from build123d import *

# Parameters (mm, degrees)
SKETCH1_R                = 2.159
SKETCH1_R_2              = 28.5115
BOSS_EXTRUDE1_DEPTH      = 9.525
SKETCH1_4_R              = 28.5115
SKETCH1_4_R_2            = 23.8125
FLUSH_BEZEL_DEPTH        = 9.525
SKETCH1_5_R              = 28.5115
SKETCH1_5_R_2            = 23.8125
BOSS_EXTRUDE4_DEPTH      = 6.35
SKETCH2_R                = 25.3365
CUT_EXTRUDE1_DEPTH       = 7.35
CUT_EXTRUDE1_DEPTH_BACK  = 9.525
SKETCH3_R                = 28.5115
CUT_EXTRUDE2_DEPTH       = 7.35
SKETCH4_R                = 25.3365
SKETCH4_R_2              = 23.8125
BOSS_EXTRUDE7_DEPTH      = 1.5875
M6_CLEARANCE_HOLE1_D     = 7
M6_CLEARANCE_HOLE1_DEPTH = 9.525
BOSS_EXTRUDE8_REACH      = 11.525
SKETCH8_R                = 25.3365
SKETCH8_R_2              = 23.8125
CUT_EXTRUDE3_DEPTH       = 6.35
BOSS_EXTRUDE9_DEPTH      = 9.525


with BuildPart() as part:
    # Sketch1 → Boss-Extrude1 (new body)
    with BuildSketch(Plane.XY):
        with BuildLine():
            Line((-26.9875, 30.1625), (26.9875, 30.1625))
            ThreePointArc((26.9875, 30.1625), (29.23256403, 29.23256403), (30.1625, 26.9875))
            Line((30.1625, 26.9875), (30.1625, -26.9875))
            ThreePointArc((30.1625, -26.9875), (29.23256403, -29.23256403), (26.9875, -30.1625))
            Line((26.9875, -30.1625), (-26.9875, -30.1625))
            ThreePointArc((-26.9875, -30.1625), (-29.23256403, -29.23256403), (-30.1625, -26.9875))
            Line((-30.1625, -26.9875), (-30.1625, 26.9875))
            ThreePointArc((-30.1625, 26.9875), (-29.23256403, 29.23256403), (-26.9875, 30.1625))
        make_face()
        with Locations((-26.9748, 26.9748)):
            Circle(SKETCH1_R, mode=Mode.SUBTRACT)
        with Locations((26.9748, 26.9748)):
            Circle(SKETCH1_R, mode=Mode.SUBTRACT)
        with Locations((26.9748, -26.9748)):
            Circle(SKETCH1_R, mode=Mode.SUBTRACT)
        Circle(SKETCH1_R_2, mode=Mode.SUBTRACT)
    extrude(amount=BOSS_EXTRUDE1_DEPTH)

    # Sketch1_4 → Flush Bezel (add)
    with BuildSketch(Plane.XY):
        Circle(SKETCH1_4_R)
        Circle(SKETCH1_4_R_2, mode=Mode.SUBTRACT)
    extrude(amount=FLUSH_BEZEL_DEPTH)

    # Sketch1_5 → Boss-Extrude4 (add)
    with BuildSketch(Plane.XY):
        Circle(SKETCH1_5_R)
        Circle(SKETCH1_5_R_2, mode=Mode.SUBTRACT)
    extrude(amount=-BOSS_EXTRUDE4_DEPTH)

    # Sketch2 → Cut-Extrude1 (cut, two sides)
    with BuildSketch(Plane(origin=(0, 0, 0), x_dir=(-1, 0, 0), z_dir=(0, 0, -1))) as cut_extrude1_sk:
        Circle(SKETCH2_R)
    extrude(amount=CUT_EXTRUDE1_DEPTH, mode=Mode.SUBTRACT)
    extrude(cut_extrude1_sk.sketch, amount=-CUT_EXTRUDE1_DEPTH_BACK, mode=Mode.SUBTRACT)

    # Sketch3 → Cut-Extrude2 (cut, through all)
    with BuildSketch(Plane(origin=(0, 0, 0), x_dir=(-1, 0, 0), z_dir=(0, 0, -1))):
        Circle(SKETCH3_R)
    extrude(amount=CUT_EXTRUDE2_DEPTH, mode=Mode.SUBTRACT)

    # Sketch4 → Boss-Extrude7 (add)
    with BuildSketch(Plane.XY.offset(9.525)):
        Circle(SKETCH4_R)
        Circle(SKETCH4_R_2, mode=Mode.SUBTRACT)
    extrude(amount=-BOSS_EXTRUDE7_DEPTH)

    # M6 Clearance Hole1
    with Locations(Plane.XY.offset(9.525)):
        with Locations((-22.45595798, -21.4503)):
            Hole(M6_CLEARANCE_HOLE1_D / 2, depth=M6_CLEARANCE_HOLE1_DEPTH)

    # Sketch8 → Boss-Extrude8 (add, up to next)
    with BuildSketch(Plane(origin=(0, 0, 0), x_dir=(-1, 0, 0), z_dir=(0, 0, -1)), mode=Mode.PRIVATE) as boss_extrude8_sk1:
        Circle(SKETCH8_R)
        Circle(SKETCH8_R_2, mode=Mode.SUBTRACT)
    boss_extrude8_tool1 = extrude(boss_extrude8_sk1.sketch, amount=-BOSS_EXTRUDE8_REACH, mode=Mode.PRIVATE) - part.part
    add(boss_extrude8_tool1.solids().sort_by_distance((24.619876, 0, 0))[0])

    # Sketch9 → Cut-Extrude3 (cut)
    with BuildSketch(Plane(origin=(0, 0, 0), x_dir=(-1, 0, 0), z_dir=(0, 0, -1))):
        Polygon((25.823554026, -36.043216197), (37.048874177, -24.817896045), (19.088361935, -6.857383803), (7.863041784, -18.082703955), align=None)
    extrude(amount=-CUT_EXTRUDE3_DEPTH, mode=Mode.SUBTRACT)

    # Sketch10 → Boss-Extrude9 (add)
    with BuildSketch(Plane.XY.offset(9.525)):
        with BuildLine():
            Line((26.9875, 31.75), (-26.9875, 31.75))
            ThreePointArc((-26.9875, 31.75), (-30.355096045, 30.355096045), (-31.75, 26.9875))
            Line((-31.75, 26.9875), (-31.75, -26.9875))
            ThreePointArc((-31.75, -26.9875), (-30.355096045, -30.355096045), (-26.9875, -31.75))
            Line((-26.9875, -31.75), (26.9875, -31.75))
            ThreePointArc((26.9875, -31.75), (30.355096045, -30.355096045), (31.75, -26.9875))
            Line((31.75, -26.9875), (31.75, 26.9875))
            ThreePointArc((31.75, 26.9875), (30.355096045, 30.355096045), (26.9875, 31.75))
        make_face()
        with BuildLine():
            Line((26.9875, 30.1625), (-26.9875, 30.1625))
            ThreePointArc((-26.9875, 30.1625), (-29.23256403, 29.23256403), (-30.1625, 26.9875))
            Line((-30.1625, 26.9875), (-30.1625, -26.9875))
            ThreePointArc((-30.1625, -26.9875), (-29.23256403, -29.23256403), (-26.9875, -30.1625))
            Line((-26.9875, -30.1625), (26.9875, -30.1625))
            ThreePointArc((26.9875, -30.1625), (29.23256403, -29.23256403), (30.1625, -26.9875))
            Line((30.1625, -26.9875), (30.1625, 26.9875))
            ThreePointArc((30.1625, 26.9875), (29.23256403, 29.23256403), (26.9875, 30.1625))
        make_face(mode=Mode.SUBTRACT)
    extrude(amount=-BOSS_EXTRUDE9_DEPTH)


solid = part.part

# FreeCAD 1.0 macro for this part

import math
import FreeCAD as App
import Part
import Sketcher
from FreeCAD import Vector
Q = App.Units.Quantity

doc = App.newDocument("Part")
body = doc.addObject("PartDesign::Body", "Body")

sketch1 = doc.addObject("Sketcher::SketchObject", "Sketch")
body.addObject(sketch1)
sketch1.AttachmentSupport = (doc.XY_Plane, [""])
sketch1.MapMode = "FlatFace"
sketch1.addGeometry([
    Part.LineSegment(Vector(27, 30.2, 0), Vector(-27, 30.2, 0)),
    Part.ArcOfCircle(Part.Circle(Vector(-27, 27, 0), Vector(0, 0, 1), 3.2), math.radians(90), math.radians(180)),
    Part.LineSegment(Vector(-30.2, 27, 0), Vector(-30.2, -27, 0)),
    Part.ArcOfCircle(Part.Circle(Vector(-27, -27, 0), Vector(0, 0, 1), 3.2), math.radians(-180), math.radians(-90)),
    Part.LineSegment(Vector(-27, -30.2, 0), Vector(27, -30.2, 0)),
    Part.ArcOfCircle(Part.Circle(Vector(27, -27, 0), Vector(0, 0, 1), 3.2), math.radians(-90), math.radians(0)),
    Part.LineSegment(Vector(30.2, -27, 0), Vector(30.2, 27, 0)),
    Part.ArcOfCircle(Part.Circle(Vector(27, 27, 0), Vector(0, 0, 1), 3.2), math.radians(0), math.radians(90)),
    Part.Circle(Vector(27, -27, 0), Vector(0, 0, 1), 2.2),
    Part.Circle(Vector(27, 27, 0), Vector(0, 0, 1), 2.2),
    Part.Circle(Vector(0, 0, 0), Vector(0, 0, 1), 28.5),
    Part.Circle(Vector(-27, 27, 0), Vector(0, 0, 1), 2.2),
], False)
sketch1.addConstraint([
    Sketcher.Constraint("Tangent", 0, 2, 1, 1),
    Sketcher.Constraint("Tangent", 1, 2, 2, 1),
    Sketcher.Constraint("Tangent", 2, 2, 3, 1),
    Sketcher.Constraint("Tangent", 3, 2, 4, 1),
    Sketcher.Constraint("Tangent", 4, 2, 5, 1),
    Sketcher.Constraint("Tangent", 5, 2, 6, 1),
    Sketcher.Constraint("Tangent", 6, 2, 7, 1),
    Sketcher.Constraint("Tangent", 7, 2, 0, 1),
    Sketcher.Constraint("Horizontal", 0),
    Sketcher.Constraint("Vertical", 2),
    Sketcher.Constraint("Horizontal", 4),
    Sketcher.Constraint("Vertical", 6),
    Sketcher.Constraint("Coincident", 10, 3, -1, 1),
    Sketcher.Constraint("Equal", 1, 3),
    Sketcher.Constraint("Equal", 3, 5),
    Sketcher.Constraint("Equal", 5, 7),
    Sketcher.Constraint("Equal", 8, 9),
    Sketcher.Constraint("Equal", 9, 11),
    Sketcher.Constraint("Symmetric", 1, 3, 5, 3, -1, 1),
    Sketcher.Constraint("Symmetric", 8, 3, 11, 3, -1, 1),
    Sketcher.Constraint("Symmetric", 9, 3, 11, 3, -2),
    Sketcher.Constraint("Equal", 4, 2),
    Sketcher.Constraint("Diameter", 8, Q("0.17 in")),
    Sketcher.Constraint("Diameter", 10, Q("2.245 in")),
    Sketcher.Constraint("Radius", 1, Q("0.125 in")),
    Sketcher.Constraint("DistanceX", 0, 2, 0, 1, Q("2.125 in")),
    Sketcher.Constraint("DistanceX", -1, 1, 8, 3, Q("1.062 in")),
    Sketcher.Constraint("DistanceY", 8, 3, -1, 1, Q("1.062 in")),
])
pad1 = doc.addObject("PartDesign::Pad", "Pad")
body.addObject(pad1)
pad1.Profile = sketch1
pad1.Length = Q("0.375 in")

sketch2 = doc.addObject("Sketcher::SketchObject", "Sketch001")
body.addObject(sketch2)
sketch2.AttachmentSupport = (doc.XY_Plane, [""])
sketch2.MapMode = "FlatFace"
sketch2.addGeometry([
    Part.Circle(Vector(0, 0, 0), Vector(0, 0, 1), 29),
    Part.Circle(Vector(0, 0, 0), Vector(0, 0, 1), 24),
], False)
sketch2.addConstraint([
    Sketcher.Constraint("Coincident", 0, 3, -1, 1),
    Sketcher.Constraint("Coincident", 1, 3, -1, 1),
    Sketcher.Constraint("Diameter", 0, Q("2.245 in")),
    Sketcher.Constraint("Diameter", 1, Q("1.875 in")),
])
pad2 = doc.addObject("PartDesign::Pad", "Pad001")
body.addObject(pad2)
pad2.Profile = sketch2
pad2.Length = Q("0.375 in")

sketch3 = doc.addObject("Sketcher::SketchObject", "Sketch002")
body.addObject(sketch3)
sketch3.AttachmentSupport = (doc.XY_Plane, [""])
sketch3.MapMode = "FlatFace"
sketch3.addGeometry([
    Part.Circle(Vector(0, 0, 0), Vector(0, 0, 1), 29),
    Part.Circle(Vector(0, 0, 0), Vector(0, 0, 1), 24),
], False)
sketch3.addConstraint([
    Sketcher.Constraint("Coincident", 0, 3, -1, 1),
    Sketcher.Constraint("Coincident", 1, 3, -1, 1),
    Sketcher.Constraint("Diameter", 0, Q("2.245 in")),
    Sketcher.Constraint("Diameter", 1, Q("1.875 in")),
])
pad3 = doc.addObject("PartDesign::Pad", "Pad002")
body.addObject(pad3)
pad3.Profile = sketch3
pad3.Length = Q("0.25 in")
pad3.Reversed = True

sketch4 = doc.addObject("Sketcher::SketchObject", "Sketch003")
body.addObject(sketch4)
sketch4.AttachmentSupport = (doc.XY_Plane, [""])
sketch4.MapMode = "FlatFace"
sketch4.addGeometry(Part.Circle(Vector(0, 0, 0), Vector(0, 0, 1), 25), False)
sketch4.addConstraint([
    Sketcher.Constraint("Coincident", 0, 3, -1, 1),
    Sketcher.Constraint("Diameter", 0, Q("1.995 in")),
])
pocket1 = doc.addObject("PartDesign::Pocket", "Pocket")
body.addObject(pocket1)
pocket1.Profile = sketch4
pocket1.Type = "ThroughAll"
pocket1.Midplane = True

sketch5 = doc.addObject("Sketcher::SketchObject", "Sketch004")
body.addObject(sketch5)
sketch5.AttachmentSupport = (doc.XY_Plane, [""])
sketch5.MapMode = "FlatFace"
sketch5.addGeometry(Part.Circle(Vector(0, 0, 0), Vector(0, 0, 1), 29), False)
sketch5.addConstraint([
    Sketcher.Constraint("Coincident", 0, 3, -1, 1),
    Sketcher.Constraint("Diameter", 0, Q("2.245 in")),
])
pocket2 = doc.addObject("PartDesign::Pocket", "Pocket001")
body.addObject(pocket2)
pocket2.Profile = sketch5
pocket2.Type = "ThroughAll"

sketch6 = doc.addObject("Sketcher::SketchObject", "Sketch005")
body.addObject(sketch6)
sketch6.AttachmentSupport = (doc.XY_Plane, [""])
sketch6.MapMode = "FlatFace"
sketch6.AttachmentOffset = App.Placement(Vector(0, 0, 0.375 * 25.4), App.Rotation())
sketch6.addGeometry([
    Part.Circle(Vector(0, 0, 0), Vector(0, 0, 1), 25),
    Part.Circle(Vector(0, 0, 0), Vector(0, 0, 1), 24),
], False)
sketch6.addConstraint([
    Sketcher.Constraint("Coincident", 0, 3, -1, 1),
    Sketcher.Constraint("Coincident", 1, 3, -1, 1),
    Sketcher.Constraint("Diameter", 0, Q("1.995 in")),
    Sketcher.Constraint("Diameter", 1, Q("1.875 in")),
])
pad4 = doc.addObject("PartDesign::Pad", "Pad003")
body.addObject(pad4)
pad4.Profile = sketch6
pad4.Length = Q("0.0625 in")
pad4.Reversed = True

sketch7 = doc.addObject("Sketcher::SketchObject", "Sketch006")
body.addObject(sketch7)
sketch7.AttachmentSupport = (doc.XY_Plane, [""])
sketch7.MapMode = "FlatFace"
sketch7.AttachmentOffset = App.Placement(Vector(0, 0, 0.375 * 25.4), App.Rotation())
sketch7.addGeometry(Part.Circle(Vector(-22.5, -21.5, 0), Vector(0, 0, 1), 3.5), False)
sketch7.addConstraint([
    Sketcher.Constraint("Diameter", 0, 7.0),
    Sketcher.Constraint("DistanceY", 0, 3, -1, 1, Q("0.8445 in")),
    Sketcher.Constraint("DistanceX", 0, 3, -1, 1, 22.455958),
])
doc.recompute()
hole = doc.addObject("PartDesign::Hole", "Hole")
body.addObject(hole)
hole.Profile = sketch7
hole.ThreadType = "None"
hole.Diameter = 7
hole.DepthType = "Dimension"
hole.Depth = Q("0.375 in")
hole.DrillPoint = "Flat"

sketch8 = doc.addObject("Sketcher::SketchObject", "Sketch007")
body.addObject(sketch8)
sketch8.AttachmentSupport = (doc.XY_Plane, [""])
sketch8.MapMode = "FlatFace"
sketch8.addGeometry([
    Part.Circle(Vector(0, 0, 0), Vector(0, 0, 1), 25),
    Part.Circle(Vector(0, 0, 0), Vector(0, 0, 1), 24),
], False)
sketch8.addConstraint([
    Sketcher.Constraint("Coincident", 0, 3, -1, 1),
    Sketcher.Constraint("Coincident", 1, 3, -1, 1),
    Sketcher.Constraint("Diameter", 0, Q("1.995 in")),
    Sketcher.Constraint("Diameter", 1, Q("1.875 in")),
])
pad5 = doc.addObject("PartDesign::Pad", "Pad004")
body.addObject(pad5)
pad5.Profile = sketch8
pad5.Length = Q("0.3125 in")

sketch9 = doc.addObject("Sketcher::SketchObject", "Sketch008")
body.addObject(sketch9)
sketch9.AttachmentSupport = (doc.XY_Plane, [""])
sketch9.MapMode = "FlatFace"
sketch9.addGeometry([
    Part.LineSegment(Vector(-26, -36, 0), Vector(-37, -25, 0)),
    Part.LineSegment(Vector(-37, -25, 0), Vector(-19, -7, 0)),
    Part.LineSegment(Vector(-19, -7, 0), Vector(-8, -18, 0)),
    Part.LineSegment(Vector(-8, -18, 0), Vector(-26, -36, 0)),
], False)
sketch9.addConstraint([
    Sketcher.Constraint("Coincident", 0, 2, 1, 1),
    Sketcher.Constraint("Coincident", 1, 2, 2, 1),
    Sketcher.Constraint("Coincident", 2, 2, 3, 1),
    Sketcher.Constraint("Coincident", 3, 2, 0, 1),
    Sketcher.Constraint("Perpendicular", 0, 1),
    Sketcher.Constraint("Perpendicular", 1, 2),
    Sketcher.Constraint("Perpendicular", 2, 3),
    Sketcher.Constraint("Distance", 1, Q("1 in")),
    Sketcher.Constraint("Angle", 0, Q("135 deg")),
    Sketcher.Constraint("Distance", 0, Q("0.625 in")),
    Sketcher.Constraint("DistanceX", 1, 2, -1, 1, 19.088362),
    Sketcher.Constraint("DistanceY", 0, 2, -1, 1, 24.817896),
])
pocket3 = doc.addObject("PartDesign::Pocket", "Pocket002")
body.addObject(pocket3)
pocket3.Profile = sketch9
pocket3.Length = Q("0.25 in")
pocket3.Reversed = True

sketch10 = doc.addObject("Sketcher::SketchObject", "Sketch009")
body.addObject(sketch10)
sketch10.AttachmentSupport = (doc.XY_Plane, [""])
sketch10.MapMode = "FlatFace"
sketch10.AttachmentOffset = App.Placement(Vector(0, 0, 0.375 * 25.4), App.Rotation())
sketch10.addGeometry([
    Part.LineSegment(Vector(27, 31.8, 0), Vector(-27, 31.8, 0)),
    Part.ArcOfCircle(Part.Circle(Vector(-27, 27, 0), Vector(0, 0, 1), 4.8), math.radians(90), math.radians(180)),
    Part.LineSegment(Vector(-31.8, 27, 0), Vector(-31.8, -27, 0)),
    Part.ArcOfCircle(Part.Circle(Vector(-27, -27, 0), Vector(0, 0, 1), 4.8), math.radians(-180), math.radians(-90)),
    Part.LineSegment(Vector(-27, -31.8, 0), Vector(27, -31.8, 0)),
    Part.ArcOfCircle(Part.Circle(Vector(27, -27, 0), Vector(0, 0, 1), 4.8), math.radians(-90), math.radians(0)),
    Part.LineSegment(Vector(31.8, -27, 0), Vector(31.8, 27, 0)),
    Part.ArcOfCircle(Part.Circle(Vector(27, 27, 0), Vector(0, 0, 1), 4.8), math.radians(0), math.radians(90)),
    Part.LineSegment(Vector(-27, 30.2, 0), Vector(27, 30.2, 0)),
    Part.ArcOfCircle(Part.Circle(Vector(27, 27, 0), Vector(0, 0, 1), 3.2), math.radians(0), math.radians(90)),
    Part.LineSegment(Vector(30.2, 27, 0), Vector(30.2, -27, 0)),
    Part.ArcOfCircle(Part.Circle(Vector(27, -27, 0), Vector(0, 0, 1), 3.2), math.radians(-90), math.radians(0)),
    Part.LineSegment(Vector(27, -30.2, 0), Vector(-27, -30.2, 0)),
    Part.ArcOfCircle(Part.Circle(Vector(-27, -27, 0), Vector(0, 0, 1), 3.2), math.radians(-180), math.radians(-90)),
    Part.LineSegment(Vector(-30.2, -27, 0), Vector(-30.2, 27, 0)),
    Part.ArcOfCircle(Part.Circle(Vector(-27, 27, 0), Vector(0, 0, 1), 3.2), math.radians(90), math.radians(180)),
], False)
sketch10.addConstraint([
    Sketcher.Constraint("Tangent", 0, 2, 1, 1),
    Sketcher.Constraint("Tangent", 1, 2, 2, 1),
    Sketcher.Constraint("Tangent", 2, 2, 3, 1),
    Sketcher.Constraint("Tangent", 3, 2, 4, 1),
    Sketcher.Constraint("Tangent", 4, 2, 5, 1),
    Sketcher.Constraint("Tangent", 5, 2, 6, 1),
    Sketcher.Constraint("Tangent", 6, 2, 7, 1),
    Sketcher.Constraint("Tangent", 7, 2, 0, 1),
    Sketcher.Constraint("Tangent", 8, 2, 9, 2),
    Sketcher.Constraint("Tangent", 9, 1, 10, 1),
    Sketcher.Constraint("Tangent", 10, 2, 11, 2),
    Sketcher.Constraint("Tangent", 11, 1, 12, 1),
    Sketcher.Constraint("Tangent", 12, 2, 13, 2),
    Sketcher.Constraint("Tangent", 13, 1, 14, 1),
    Sketcher.Constraint("Tangent", 14, 2, 15, 2),
    Sketcher.Constraint("Tangent", 15, 1, 8, 1),
    Sketcher.Constraint("Horizontal", 0),
    Sketcher.Constraint("Vertical", 2),
    Sketcher.Constraint("Horizontal", 4),
    Sketcher.Constraint("Vertical", 6),
    Sketcher.Constraint("Horizontal", 8),
    Sketcher.Constraint("Vertical", 10),
    Sketcher.Constraint("Horizontal", 12),
    Sketcher.Constraint("Vertical", 14),
    Sketcher.Constraint("Coincident", 9, 3, 7, 3),
    Sketcher.Constraint("Coincident", 11, 3, 5, 3),
    Sketcher.Constraint("Coincident", 13, 3, 3, 3),
    Sketcher.Constraint("Equal", 1, 3),
    Sketcher.Constraint("Equal", 3, 5),
    Sketcher.Constraint("Equal", 5, 7),
    Sketcher.Constraint("Equal", 13, 15),
    Sketcher.Constraint("Symmetric", 1, 3, 5, 3, -1, 1),
    Sketcher.Constraint("Equal", 12, 2),
    Sketcher.Constraint("Radius", 1, Q("0.1875 in")),
    Sketcher.Constraint("Radius", 9, Q("0.125 in")),
    Sketcher.Constraint("DistanceX", 0, 2, 0, 1, Q("2.125 in")),
])
pad6 = doc.addObject("PartDesign::Pad", "Pad005")
body.addObject(pad6)
pad6.Profile = sketch10
pad6.Length = Q("0.375 in")
pad6.Reversed = True

doc.recompute()
